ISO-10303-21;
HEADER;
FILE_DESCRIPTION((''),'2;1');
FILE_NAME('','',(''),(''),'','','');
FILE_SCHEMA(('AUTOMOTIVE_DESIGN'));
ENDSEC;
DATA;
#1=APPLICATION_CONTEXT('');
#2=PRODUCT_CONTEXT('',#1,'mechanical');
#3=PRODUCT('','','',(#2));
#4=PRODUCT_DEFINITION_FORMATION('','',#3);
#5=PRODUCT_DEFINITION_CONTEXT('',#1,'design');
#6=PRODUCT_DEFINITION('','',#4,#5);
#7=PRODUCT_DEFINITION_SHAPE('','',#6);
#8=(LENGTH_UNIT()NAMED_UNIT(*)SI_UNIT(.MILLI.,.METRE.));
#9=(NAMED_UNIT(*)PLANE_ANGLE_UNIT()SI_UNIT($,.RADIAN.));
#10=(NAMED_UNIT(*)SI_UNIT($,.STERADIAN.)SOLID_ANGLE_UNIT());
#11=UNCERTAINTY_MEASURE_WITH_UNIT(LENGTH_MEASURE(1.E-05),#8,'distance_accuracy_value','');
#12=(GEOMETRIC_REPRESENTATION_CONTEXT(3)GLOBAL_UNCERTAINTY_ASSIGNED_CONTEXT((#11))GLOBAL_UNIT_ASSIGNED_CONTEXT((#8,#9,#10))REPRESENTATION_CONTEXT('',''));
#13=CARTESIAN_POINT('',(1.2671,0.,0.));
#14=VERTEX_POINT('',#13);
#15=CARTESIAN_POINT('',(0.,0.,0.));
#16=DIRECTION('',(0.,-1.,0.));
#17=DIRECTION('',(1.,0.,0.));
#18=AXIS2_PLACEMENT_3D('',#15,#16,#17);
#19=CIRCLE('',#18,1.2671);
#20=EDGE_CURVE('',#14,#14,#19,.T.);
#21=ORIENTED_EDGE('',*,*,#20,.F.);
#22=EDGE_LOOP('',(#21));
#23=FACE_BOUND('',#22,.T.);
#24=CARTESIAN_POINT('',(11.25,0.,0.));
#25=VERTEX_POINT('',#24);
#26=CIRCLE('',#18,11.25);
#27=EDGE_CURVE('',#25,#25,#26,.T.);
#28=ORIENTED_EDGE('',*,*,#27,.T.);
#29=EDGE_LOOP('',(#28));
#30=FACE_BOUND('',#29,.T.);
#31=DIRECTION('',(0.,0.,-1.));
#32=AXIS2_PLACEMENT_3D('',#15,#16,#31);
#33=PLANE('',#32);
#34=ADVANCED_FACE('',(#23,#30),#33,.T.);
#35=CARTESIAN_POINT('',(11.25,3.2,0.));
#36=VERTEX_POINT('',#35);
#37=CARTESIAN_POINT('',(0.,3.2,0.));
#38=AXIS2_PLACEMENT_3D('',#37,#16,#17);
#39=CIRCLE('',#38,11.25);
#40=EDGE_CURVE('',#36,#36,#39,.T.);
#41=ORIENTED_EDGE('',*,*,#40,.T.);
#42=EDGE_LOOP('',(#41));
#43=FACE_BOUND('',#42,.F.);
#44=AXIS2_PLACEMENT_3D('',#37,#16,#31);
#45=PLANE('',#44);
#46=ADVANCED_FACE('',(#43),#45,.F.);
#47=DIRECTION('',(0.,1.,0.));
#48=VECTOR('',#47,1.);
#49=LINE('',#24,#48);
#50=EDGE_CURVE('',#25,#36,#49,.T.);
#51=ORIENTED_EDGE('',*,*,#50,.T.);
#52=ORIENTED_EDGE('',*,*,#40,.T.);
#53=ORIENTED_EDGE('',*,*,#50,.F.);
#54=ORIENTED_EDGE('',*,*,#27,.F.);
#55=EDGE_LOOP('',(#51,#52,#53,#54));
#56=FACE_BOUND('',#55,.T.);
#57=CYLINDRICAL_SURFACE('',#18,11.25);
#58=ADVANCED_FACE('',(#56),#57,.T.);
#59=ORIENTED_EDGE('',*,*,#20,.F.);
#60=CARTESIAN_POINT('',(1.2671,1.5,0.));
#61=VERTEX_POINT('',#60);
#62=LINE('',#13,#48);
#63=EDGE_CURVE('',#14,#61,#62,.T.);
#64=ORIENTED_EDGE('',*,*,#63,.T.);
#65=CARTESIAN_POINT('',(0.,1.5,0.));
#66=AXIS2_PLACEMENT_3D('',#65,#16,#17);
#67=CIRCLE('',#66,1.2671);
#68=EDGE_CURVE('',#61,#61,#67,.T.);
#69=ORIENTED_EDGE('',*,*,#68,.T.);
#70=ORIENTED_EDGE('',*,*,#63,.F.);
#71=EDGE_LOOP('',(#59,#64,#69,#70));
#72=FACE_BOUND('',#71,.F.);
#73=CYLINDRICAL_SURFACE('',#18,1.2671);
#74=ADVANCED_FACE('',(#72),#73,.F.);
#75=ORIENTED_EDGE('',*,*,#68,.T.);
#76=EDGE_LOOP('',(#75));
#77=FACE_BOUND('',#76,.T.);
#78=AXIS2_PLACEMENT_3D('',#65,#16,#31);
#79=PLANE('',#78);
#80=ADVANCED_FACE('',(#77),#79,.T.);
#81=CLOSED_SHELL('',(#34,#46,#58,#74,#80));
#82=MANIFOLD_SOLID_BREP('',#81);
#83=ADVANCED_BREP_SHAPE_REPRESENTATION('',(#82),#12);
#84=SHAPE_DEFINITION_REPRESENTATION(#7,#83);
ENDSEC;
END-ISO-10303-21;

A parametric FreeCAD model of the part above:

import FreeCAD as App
import Part
import Sketcher

V = App.Vector
Q = App.Units.Quantity

doc = App.newDocument("Part")
body = doc.addObject("PartDesign::Body", "Body")

# Sketch on XZ plane
sketch1 = doc.addObject("Sketcher::SketchObject", "Sketch")
body.addObject(sketch1)
sketch1.AttachmentSupport = (doc.XZ_Plane, [""])
sketch1.MapMode = "FlatFace"
sketch1.addGeometry(Part.Circle(V(0, 0, 0), V(0, 0, 1), 11.25), False)
sketch1.addConstraint([
    Sketcher.Constraint("Coincident", 0, 3, -1, 1),
    Sketcher.Constraint("Diameter", 0, Q("22.5 mm")),
])
pad1 = doc.addObject("PartDesign::Pad", "Pad")
body.addObject(pad1)
pad1.Profile = sketch1
pad1.Length = 3.2
pad1.Reversed = True

# Sketch on XZ plane
sketch2 = doc.addObject("Sketcher::SketchObject", "Sketch001")
body.addObject(sketch2)
sketch2.AttachmentSupport = (doc.XZ_Plane, [""])
sketch2.MapMode = "FlatFace"
sketch2.addGeometry(Part.Circle(V(0, 0, 0), V(0, 0, 1), 1.2671), False)
sketch2.addConstraint([
    Sketcher.Constraint("Coincident", 0, 3, -1, 1),
    Sketcher.Constraint("Diameter", 0, Q("2.5342 mm")),
])
pocket1 = doc.addObject("PartDesign::Pocket", "Pocket")
body.addObject(pocket1)
pocket1.Profile = sketch2
pocket1.Length = 1.5

doc.recompute()
